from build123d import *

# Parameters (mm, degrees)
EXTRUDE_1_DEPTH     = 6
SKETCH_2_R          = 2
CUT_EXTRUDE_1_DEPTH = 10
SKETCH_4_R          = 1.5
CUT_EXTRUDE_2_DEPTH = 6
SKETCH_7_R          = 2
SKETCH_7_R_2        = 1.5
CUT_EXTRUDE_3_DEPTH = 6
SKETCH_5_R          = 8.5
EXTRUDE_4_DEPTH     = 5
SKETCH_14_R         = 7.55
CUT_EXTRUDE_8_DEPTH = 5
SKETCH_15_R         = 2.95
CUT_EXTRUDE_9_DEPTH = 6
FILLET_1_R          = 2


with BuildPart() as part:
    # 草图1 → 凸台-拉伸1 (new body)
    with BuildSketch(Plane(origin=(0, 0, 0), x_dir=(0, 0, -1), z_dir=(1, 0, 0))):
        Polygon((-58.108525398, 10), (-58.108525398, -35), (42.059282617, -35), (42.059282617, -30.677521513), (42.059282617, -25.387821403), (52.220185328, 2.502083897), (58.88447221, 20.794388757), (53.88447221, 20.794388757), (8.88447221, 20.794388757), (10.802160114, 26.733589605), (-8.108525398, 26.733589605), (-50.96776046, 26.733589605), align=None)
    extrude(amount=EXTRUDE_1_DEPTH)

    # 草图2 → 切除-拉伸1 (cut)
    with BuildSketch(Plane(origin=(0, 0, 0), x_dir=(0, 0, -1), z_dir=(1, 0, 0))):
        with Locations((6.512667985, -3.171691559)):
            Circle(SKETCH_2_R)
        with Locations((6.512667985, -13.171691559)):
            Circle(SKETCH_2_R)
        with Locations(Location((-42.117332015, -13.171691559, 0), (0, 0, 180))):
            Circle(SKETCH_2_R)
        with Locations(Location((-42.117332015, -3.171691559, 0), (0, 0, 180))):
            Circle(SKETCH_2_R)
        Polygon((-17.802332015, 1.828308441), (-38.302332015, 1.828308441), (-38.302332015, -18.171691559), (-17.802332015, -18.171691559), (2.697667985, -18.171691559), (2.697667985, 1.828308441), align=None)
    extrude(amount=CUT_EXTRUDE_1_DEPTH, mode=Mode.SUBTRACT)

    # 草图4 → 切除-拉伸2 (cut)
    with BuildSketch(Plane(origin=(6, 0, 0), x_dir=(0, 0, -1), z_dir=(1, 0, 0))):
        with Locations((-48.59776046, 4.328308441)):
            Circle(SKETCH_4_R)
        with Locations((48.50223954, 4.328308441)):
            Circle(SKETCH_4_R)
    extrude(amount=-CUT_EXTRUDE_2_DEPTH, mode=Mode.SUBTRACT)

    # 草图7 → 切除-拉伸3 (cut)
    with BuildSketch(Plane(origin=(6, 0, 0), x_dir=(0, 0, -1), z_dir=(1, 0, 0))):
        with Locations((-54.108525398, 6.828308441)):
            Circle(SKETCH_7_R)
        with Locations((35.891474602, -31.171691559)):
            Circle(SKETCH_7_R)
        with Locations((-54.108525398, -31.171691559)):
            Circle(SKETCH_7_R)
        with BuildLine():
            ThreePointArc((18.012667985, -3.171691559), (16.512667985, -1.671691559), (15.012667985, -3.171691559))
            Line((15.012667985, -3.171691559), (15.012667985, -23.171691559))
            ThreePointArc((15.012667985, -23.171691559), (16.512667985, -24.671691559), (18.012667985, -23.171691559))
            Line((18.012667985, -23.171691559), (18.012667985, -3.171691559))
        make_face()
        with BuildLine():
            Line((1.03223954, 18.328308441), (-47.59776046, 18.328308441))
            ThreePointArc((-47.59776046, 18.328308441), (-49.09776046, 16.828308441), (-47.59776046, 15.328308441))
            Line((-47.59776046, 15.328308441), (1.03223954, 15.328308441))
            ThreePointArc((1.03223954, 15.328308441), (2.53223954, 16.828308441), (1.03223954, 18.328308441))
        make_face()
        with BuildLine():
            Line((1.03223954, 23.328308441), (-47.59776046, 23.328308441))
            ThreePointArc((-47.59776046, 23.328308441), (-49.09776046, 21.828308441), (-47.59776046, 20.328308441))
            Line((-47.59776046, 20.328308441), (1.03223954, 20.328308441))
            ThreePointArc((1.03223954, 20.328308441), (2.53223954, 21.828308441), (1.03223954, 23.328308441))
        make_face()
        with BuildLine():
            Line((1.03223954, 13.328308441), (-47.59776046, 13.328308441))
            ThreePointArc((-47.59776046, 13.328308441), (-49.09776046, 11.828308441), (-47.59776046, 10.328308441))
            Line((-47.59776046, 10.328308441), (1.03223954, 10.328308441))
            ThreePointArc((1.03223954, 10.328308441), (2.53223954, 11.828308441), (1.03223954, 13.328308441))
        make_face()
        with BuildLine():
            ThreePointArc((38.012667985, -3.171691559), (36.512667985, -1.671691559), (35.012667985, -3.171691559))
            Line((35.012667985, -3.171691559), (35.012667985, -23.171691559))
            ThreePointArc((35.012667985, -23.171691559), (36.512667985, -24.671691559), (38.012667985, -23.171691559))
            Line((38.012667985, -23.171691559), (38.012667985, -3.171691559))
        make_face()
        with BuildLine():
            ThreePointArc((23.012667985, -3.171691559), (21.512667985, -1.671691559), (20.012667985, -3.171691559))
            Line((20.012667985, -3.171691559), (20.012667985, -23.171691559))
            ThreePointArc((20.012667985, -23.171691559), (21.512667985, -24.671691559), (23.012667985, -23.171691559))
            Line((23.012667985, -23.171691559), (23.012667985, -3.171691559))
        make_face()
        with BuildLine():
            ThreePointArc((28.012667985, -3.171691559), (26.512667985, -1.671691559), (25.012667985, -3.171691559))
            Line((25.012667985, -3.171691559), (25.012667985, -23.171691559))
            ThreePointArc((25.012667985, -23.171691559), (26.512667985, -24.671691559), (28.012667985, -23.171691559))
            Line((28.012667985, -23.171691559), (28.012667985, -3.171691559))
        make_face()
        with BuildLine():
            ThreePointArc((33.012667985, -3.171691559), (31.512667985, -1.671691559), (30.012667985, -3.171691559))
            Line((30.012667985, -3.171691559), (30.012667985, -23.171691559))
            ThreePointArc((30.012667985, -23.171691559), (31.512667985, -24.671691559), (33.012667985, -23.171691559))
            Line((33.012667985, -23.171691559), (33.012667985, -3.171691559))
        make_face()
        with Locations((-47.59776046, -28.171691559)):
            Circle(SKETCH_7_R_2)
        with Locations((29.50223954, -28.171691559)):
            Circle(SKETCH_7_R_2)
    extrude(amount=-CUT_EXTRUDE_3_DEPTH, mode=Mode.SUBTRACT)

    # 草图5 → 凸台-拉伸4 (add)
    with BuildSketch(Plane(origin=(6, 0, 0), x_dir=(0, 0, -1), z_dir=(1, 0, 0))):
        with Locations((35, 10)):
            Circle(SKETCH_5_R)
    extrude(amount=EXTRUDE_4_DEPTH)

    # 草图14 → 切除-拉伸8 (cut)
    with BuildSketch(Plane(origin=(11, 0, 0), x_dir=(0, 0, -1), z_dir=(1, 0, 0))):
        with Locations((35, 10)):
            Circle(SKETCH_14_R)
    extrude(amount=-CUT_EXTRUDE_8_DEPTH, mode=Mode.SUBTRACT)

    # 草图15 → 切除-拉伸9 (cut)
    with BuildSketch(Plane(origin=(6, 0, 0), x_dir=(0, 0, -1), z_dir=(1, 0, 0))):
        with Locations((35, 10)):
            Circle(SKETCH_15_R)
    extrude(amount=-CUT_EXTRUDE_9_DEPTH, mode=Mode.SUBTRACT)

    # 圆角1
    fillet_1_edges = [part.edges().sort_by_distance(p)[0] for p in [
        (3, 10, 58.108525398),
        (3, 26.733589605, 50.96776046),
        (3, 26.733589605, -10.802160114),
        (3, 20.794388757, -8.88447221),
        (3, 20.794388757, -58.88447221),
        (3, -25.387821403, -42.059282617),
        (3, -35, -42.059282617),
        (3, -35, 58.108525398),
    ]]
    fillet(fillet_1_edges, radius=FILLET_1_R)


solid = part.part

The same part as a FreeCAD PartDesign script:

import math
import FreeCAD as App
import Part
import Sketcher

V = App.Vector
Q = App.Units.Quantity


def edges_at(feature, points):
    """Names of the edges that pass closest to the given points."""
    edges = feature.Shape.Edges
    near = lambda p: min(range(len(edges)), key=lambda i: edges[i].distToShape(Part.Vertex(*p))[0])
    return sorted({f"Edge{near(p) + 1}" for p in points})

doc = App.newDocument("Part")
body = doc.addObject("PartDesign::Body", "Body")

# Sketch on YZ plane
sketch1 = doc.addObject("Sketcher::SketchObject", "Sketch")
body.addObject(sketch1)
sketch1.AttachmentSupport = (doc.YZ_Plane, [""])
sketch1.MapMode = "FlatFace"
sketch1.addGeometry([
    Part.LineSegment(V(10, 58.108525, 0), V(-35, 58.108525, 0)),  # 0
    Part.LineSegment(V(-35, 58.108525, 0), V(-35, -42.059283, 0)),  # 1
    Part.LineSegment(V(-35, -42.059283, 0), V(-25.387821, -42.059283, 0)),  # 2
    Part.LineSegment(V(-25.387821, -42.059283, 0), V(2.502084, -52.220185, 0)),  # 3
    Part.LineSegment(V(2.502084, -52.220185, 0), V(20.794389, -58.884472, 0)),  # 4
    Part.LineSegment(V(20.794389, -58.884472, 0), V(20.794389, -8.884472, 0)),  # 5
    Part.LineSegment(V(20.794389, -8.884472, 0), V(26.73359, -10.80216, 0)),  # 6
    Part.LineSegment(V(26.73359, -10.80216, 0), V(26.73359, 50.96776, 0)),  # 7
    Part.LineSegment(V(26.73359, 50.96776, 0), V(10, 58.108525, 0)),  # 8
], False)
sketch1.addConstraint([
    Sketcher.Constraint("Coincident", 0, 2, 1, 1),
    Sketcher.Constraint("Coincident", 1, 2, 2, 1),
    Sketcher.Constraint("Coincident", 2, 2, 3, 1),
    Sketcher.Constraint("Coincident", 3, 2, 4, 1),
    Sketcher.Constraint("Coincident", 4, 2, 5, 1),
    Sketcher.Constraint("Coincident", 5, 2, 6, 1),
    Sketcher.Constraint("Coincident", 6, 2, 7, 1),
    Sketcher.Constraint("Coincident", 7, 2, 8, 1),
    Sketcher.Constraint("Coincident", 8, 2, 0, 1),
    Sketcher.Constraint("Horizontal", 0),
    Sketcher.Constraint("Vertical", 1),
    Sketcher.Constraint("Horizontal", 2),
    Sketcher.Constraint("Vertical", 5),
    Sketcher.Constraint("Vertical", 7),
    Sketcher.Constraint("Parallel", 3, 4),
    Sketcher.Constraint("DistanceX", 0, 2, 0, 1, Q("45 mm")),
    Sketcher.Constraint("DistanceY", 5, 1, 5, 2, Q("50 mm")),
    Sketcher.Constraint("DistanceX", 0, 2, -1, 1, Q("35 mm")),
    Sketcher.Constraint("DistanceX", 2, 1, 2, 2, Q("9.612179 mm")),
    Sketcher.Constraint("DistanceY", 1, 2, 1, 1, Q("100.167808 mm")),
    Sketcher.Constraint("DistanceY", 7, 1, 7, 2, Q("61.769921 mm")),
    Sketcher.Constraint("DistanceX", 5, 2, 6, 2, Q("5.939201 mm")),
    Sketcher.Constraint("DistanceX", -1, 1, 4, 2, Q("20.794389 mm")),
    Sketcher.Constraint("DistanceY", 6, 2, -1, 1, Q("10.80216 mm")),
    Sketcher.Constraint("DistanceY", 3, 2, 0, 2, Q("110.328711 mm")),
    Sketcher.Constraint("DistanceY", 4, 2, 2, 2, Q("16.82519 mm")),
    Sketcher.Constraint("Distance", 6, Q("6.241124 mm")),
])
pad1 = doc.addObject("PartDesign::Pad", "Pad")
body.addObject(pad1)
pad1.Profile = sketch1
pad1.Length = 6

# Sketch on YZ plane
sketch2 = doc.addObject("Sketcher::SketchObject", "Sketch001")
body.addObject(sketch2)
sketch2.AttachmentSupport = (doc.YZ_Plane, [""])
sketch2.MapMode = "FlatFace"
sketch2.addGeometry([
    Part.Circle(V(-3.171692, -6.512668, 0), V(0, 0, 1), 2),  # 0
    Part.Circle(V(-13.171692, -6.512668, 0), V(0, 0, 1), 2),  # 1
    Part.Circle(V(-13.171692, 42.117332, 0), V(0, 0, 1), 2),  # 2
    Part.Circle(V(-3.171692, 42.117332, 0), V(0, 0, 1), 2),  # 3
    Part.LineSegment(V(1.828308, 38.302332, 0), V(-18.171692, 38.302332, 0)),  # 4
    Part.LineSegment(V(-18.171692, 38.302332, 0), V(-18.171692, -2.697668, 0)),  # 5
    Part.LineSegment(V(-18.171692, -2.697668, 0), V(1.828308, -2.697668, 0)),  # 6
    Part.LineSegment(V(1.828308, -2.697668, 0), V(1.828308, 38.302332, 0)),  # 7
], False)
sketch2.addConstraint([
    Sketcher.Constraint("Coincident", 4, 2, 5, 1),
    Sketcher.Constraint("Coincident", 5, 2, 6, 1),
    Sketcher.Constraint("Coincident", 6, 2, 7, 1),
    Sketcher.Constraint("Coincident", 7, 2, 4, 1),
    Sketcher.Constraint("Horizontal", 4),
    Sketcher.Constraint("Vertical", 5),
    Sketcher.Constraint("Horizontal", 6),
    Sketcher.Constraint("Vertical", 7),
    Sketcher.Constraint("Equal", 0, 1),
    Sketcher.Constraint("Equal", 1, 2),
    Sketcher.Constraint("Equal", 2, 3),
    Sketcher.Constraint("Horizontal", 0, 3, 1, 3),
    Sketcher.Constraint("Horizontal", 2, 3, 3, 3),
    Sketcher.Constraint("Vertical", 1, 3, 2, 3),
    Sketcher.Constraint("Vertical", 0, 3, 3, 3),
    Sketcher.Constraint("Diameter", 0, Q("4 mm")),
    Sketcher.Constraint("DistanceX", 4, 2, 4, 1, Q("20 mm")),
    Sketcher.Constraint("DistanceY", 5, 2, 5, 1, Q("41 mm")),
    Sketcher.Constraint("DistanceX", 1, 3, 0, 3, Q("10 mm")),
    Sketcher.Constraint("DistanceX", 4, 2, 2, 3, Q("5 mm")),
    Sketcher.Constraint("DistanceY", 1, 3, 2, 3, Q("48.63 mm")),
    Sketcher.Constraint("DistanceY", 4, 2, 2, 3, Q("3.815 mm")),
    Sketcher.Constraint("DistanceX", 0, 3, -1, 1, Q("3.171692 mm")),
    Sketcher.Constraint("DistanceY", 0, 3, -1, 1, Q("6.512668 mm")),
])
pocket1 = doc.addObject("PartDesign::Pocket", "Pocket")
body.addObject(pocket1)
pocket1.Profile = sketch2
pocket1.Length = 10
pocket1.Reversed = True

# Sketch on YZ plane
sketch3 = doc.addObject("Sketcher::SketchObject", "Sketch002")
body.addObject(sketch3)
sketch3.AttachmentSupport = (doc.YZ_Plane, [""])
sketch3.MapMode = "FlatFace"
sketch3.AttachmentOffset = App.Placement(V(0, 0, 6), App.Rotation())
sketch3.addGeometry([
    Part.Circle(V(4.328308, 48.59776, 0), V(0, 0, 1), 1.5),
    Part.Circle(V(4.328308, -48.50224, 0), V(0, 0, 1), 1.5),
], False)
sketch3.addConstraint([
    Sketcher.Constraint("Equal", 0, 1),
    Sketcher.Constraint("Vertical", 0, 3, 1, 3),
    Sketcher.Constraint("Diameter", 0, Q("3 mm")),
    Sketcher.Constraint("DistanceY", 1, 3, 0, 3, Q("97.1 mm")),
    Sketcher.Constraint("DistanceX", -1, 1, 0, 3, Q("4.328308 mm")),
    Sketcher.Constraint("DistanceY", -1, 1, 0, 3, Q("48.59776 mm")),
])
pocket2 = doc.addObject("PartDesign::Pocket", "Pocket001")
body.addObject(pocket2)
pocket2.Profile = sketch3
pocket2.Length = 6

# Sketch on YZ plane
sketch4 = doc.addObject("Sketcher::SketchObject", "Sketch003")
body.addObject(sketch4)
sketch4.AttachmentSupport = (doc.YZ_Plane, [""])
sketch4.MapMode = "FlatFace"
sketch4.AttachmentOffset = App.Placement(V(0, 0, 6), App.Rotation())
sketch4.addGeometry([
    Part.Circle(V(6.828308, 54.108525, 0), V(0, 0, 1), 2),  # 0
    Part.Circle(V(-31.171692, -35.891475, 0), V(0, 0, 1), 2),  # 1
    Part.Circle(V(-31.171692, 54.108525, 0), V(0, 0, 1), 2),  # 2
    Part.ArcOfCircle(Part.Circle(V(-3.171692, -16.512668, 0), V(0, 0, 1), 1.5), math.radians(-90), math.radians(90)),  # 3
    Part.LineSegment(V(-3.171692, -15.012668, 0), V(-23.171692, -15.012668, 0)),  # 4
    Part.ArcOfCircle(Part.Circle(V(-23.171692, -16.512668, 0), V(0, 0, 1), 1.5), math.radians(90), math.radians(270)),  # 5
    Part.LineSegment(V(-23.171692, -18.012668, 0), V(-3.171692, -18.012668, 0)),  # 6
    Part.LineSegment(V(18.328308, -1.03224, 0), V(18.328308, 47.59776, 0)),  # 7
    Part.ArcOfCircle(Part.Circle(V(16.828308, 47.59776, 0), V(0, 0, 1), 1.5), math.radians(0), math.radians(180)),  # 8
    Part.LineSegment(V(15.328308, 47.59776, 0), V(15.328308, -1.03224, 0)),  # 9
    Part.ArcOfCircle(Part.Circle(V(16.828308, -1.03224, 0), V(0, 0, 1), 1.5), math.radians(180), math.radians(360)),  # 10
    Part.LineSegment(V(23.328308, -1.03224, 0), V(23.328308, 47.59776, 0)),  # 11
    Part.ArcOfCircle(Part.Circle(V(21.828308, 47.59776, 0), V(0, 0, 1), 1.5), math.radians(0), math.radians(180)),  # 12
    Part.LineSegment(V(20.328308, 47.59776, 0), V(20.328308, -1.03224, 0)),  # 13
    Part.ArcOfCircle(Part.Circle(V(21.828308, -1.03224, 0), V(0, 0, 1), 1.5), math.radians(180), math.radians(360)),  # 14
    Part.LineSegment(V(13.328308, -1.03224, 0), V(13.328308, 47.59776, 0)),  # 15
    Part.ArcOfCircle(Part.Circle(V(11.828308, 47.59776, 0), V(0, 0, 1), 1.5), math.radians(0), math.radians(180)),  # 16
    Part.LineSegment(V(10.328308, 47.59776, 0), V(10.328308, -1.03224, 0)),  # 17
    Part.ArcOfCircle(Part.Circle(V(11.828308, -1.03224, 0), V(0, 0, 1), 1.5), math.radians(180), math.radians(360)),  # 18
    Part.ArcOfCircle(Part.Circle(V(-3.171692, -36.512668, 0), V(0, 0, 1), 1.5), math.radians(-90), math.radians(90)),  # 19
    Part.LineSegment(V(-3.171692, -35.012668, 0), V(-23.171692, -35.012668, 0)),  # 20
    Part.ArcOfCircle(Part.Circle(V(-23.171692, -36.512668, 0), V(0, 0, 1), 1.5), math.radians(90), math.radians(270)),  # 21
    Part.LineSegment(V(-23.171692, -38.012668, 0), V(-3.171692, -38.012668, 0)),  # 22
    Part.ArcOfCircle(Part.Circle(V(-3.171692, -21.512668, 0), V(0, 0, 1), 1.5), math.radians(-90), math.radians(90)),  # 23
    Part.LineSegment(V(-3.171692, -20.012668, 0), V(-23.171692, -20.012668, 0)),  # 24
    Part.ArcOfCircle(Part.Circle(V(-23.171692, -21.512668, 0), V(0, 0, 1), 1.5), math.radians(90), math.radians(270)),  # 25
    Part.LineSegment(V(-23.171692, -23.012668, 0), V(-3.171692, -23.012668, 0)),  # 26
    Part.ArcOfCircle(Part.Circle(V(-3.171692, -26.512668, 0), V(0, 0, 1), 1.5), math.radians(-90), math.radians(90)),  # 27
    Part.LineSegment(V(-3.171692, -25.012668, 0), V(-23.171692, -25.012668, 0)),  # 28
    Part.ArcOfCircle(Part.Circle(V(-23.171692, -26.512668, 0), V(0, 0, 1), 1.5), math.radians(90), math.radians(270)),  # 29
    Part.LineSegment(V(-23.171692, -28.012668, 0), V(-3.171692, -28.012668, 0)),  # 30
    Part.ArcOfCircle(Part.Circle(V(-3.171692, -31.512668, 0), V(0, 0, 1), 1.5), math.radians(-90), math.radians(90)),  # 31
    Part.LineSegment(V(-3.171692, -30.012668, 0), V(-23.171692, -30.012668, 0)),  # 32
    Part.ArcOfCircle(Part.Circle(V(-23.171692, -31.512668, 0), V(0, 0, 1), 1.5), math.radians(90), math.radians(270)),  # 33
    Part.LineSegment(V(-23.171692, -33.012668, 0), V(-3.171692, -33.012668, 0)),  # 34
    Part.Circle(V(-28.171692, 47.59776, 0), V(0, 0, 1), 1.5),  # 35
    Part.Circle(V(-28.171692, -29.50224, 0), V(0, 0, 1), 1.5),  # 36
], False)
sketch4.addConstraint([
    Sketcher.Constraint("Tangent", 3, 2, 4, 1),
    Sketcher.Constraint("Tangent", 4, 2, 5, 1),
    Sketcher.Constraint("Tangent", 5, 2, 6, 1),
    Sketcher.Constraint("Tangent", 6, 2, 3, 1),
    Sketcher.Constraint("Tangent", 7, 2, 8, 1),
    Sketcher.Constraint("Tangent", 8, 2, 9, 1),
    Sketcher.Constraint("Tangent", 9, 2, 10, 1),
    Sketcher.Constraint("Tangent", 10, 2, 7, 1),
    Sketcher.Constraint("Tangent", 11, 2, 12, 1),
    Sketcher.Constraint("Tangent", 12, 2, 13, 1),
    Sketcher.Constraint("Tangent", 13, 2, 14, 1),
    Sketcher.Constraint("Tangent", 14, 2, 11, 1),
    Sketcher.Constraint("Tangent", 15, 2, 16, 1),
    Sketcher.Constraint("Tangent", 16, 2, 17, 1),
    Sketcher.Constraint("Tangent", 17, 2, 18, 1),
    Sketcher.Constraint("Tangent", 18, 2, 15, 1),
    Sketcher.Constraint("Tangent", 19, 2, 20, 1),
    Sketcher.Constraint("Tangent", 20, 2, 21, 1),
    Sketcher.Constraint("Tangent", 21, 2, 22, 1),
    Sketcher.Constraint("Tangent", 22, 2, 19, 1),
    Sketcher.Constraint("Tangent", 23, 2, 24, 1),
    Sketcher.Constraint("Tangent", 24, 2, 25, 1),
    Sketcher.Constraint("Tangent", 25, 2, 26, 1),
    Sketcher.Constraint("Tangent", 26, 2, 23, 1),
    Sketcher.Constraint("Tangent", 27, 2, 28, 1),
    Sketcher.Constraint("Tangent", 28, 2, 29, 1),
    Sketcher.Constraint("Tangent", 29, 2, 30, 1),
    Sketcher.Constraint("Tangent", 30, 2, 27, 1),
    Sketcher.Constraint("Tangent", 31, 2, 32, 1),
    Sketcher.Constraint("Tangent", 32, 2, 33, 1),
    Sketcher.Constraint("Tangent", 33, 2, 34, 1),
    Sketcher.Constraint("Tangent", 34, 2, 31, 1),
    Sketcher.Constraint("Horizontal", 4),
    Sketcher.Constraint("Horizontal", 6),
    Sketcher.Constraint("Vertical", 7),
    Sketcher.Constraint("Vertical", 9),
    Sketcher.Constraint("Vertical", 11),
    Sketcher.Constraint("Vertical", 13),
    Sketcher.Constraint("Vertical", 15),
    Sketcher.Constraint("Vertical", 17),
    Sketcher.Constraint("Horizontal", 20),
    Sketcher.Constraint("Horizontal", 22),
    Sketcher.Constraint("Horizontal", 24),
    Sketcher.Constraint("Horizontal", 26),
    Sketcher.Constraint("Horizontal", 28),
    Sketcher.Constraint("Horizontal", 30),
    Sketcher.Constraint("Horizontal", 32),
    Sketcher.Constraint("Horizontal", 34),
    Sketcher.Constraint("Equal", 0, 1),
    Sketcher.Constraint("Equal", 1, 2),
    Sketcher.Constraint("Equal", 5, 8),
    Sketcher.Constraint("Equal", 10, 12),
    Sketcher.Constraint("Equal", 14, 16),
    Sketcher.Constraint("Equal", 18, 19),
    Sketcher.Constraint("Equal", 21, 23),
    Sketcher.Constraint("Equal", 25, 27),
    Sketcher.Constraint("Equal", 29, 31),
    Sketcher.Constraint("Equal", 33, 35),
    Sketcher.Constraint("Equal", 35, 36),
    Sketcher.Constraint("Horizontal", 0, 3, 2, 3),
    Sketcher.Constraint("Horizontal", 8, 3, 12, 3),
    Sketcher.Constraint("Horizontal", 10, 3, 14, 3),
    Sketcher.Constraint("Horizontal", 12, 3, 16, 3),
    Sketcher.Constraint("Horizontal", 14, 3, 18, 3),
    Sketcher.Constraint("Horizontal", 16, 3, 35, 3),
    Sketcher.Constraint("Vertical", 1, 3, 2, 3),
    Sketcher.Constraint("Vertical", 3, 3, 19, 3),
    Sketcher.Constraint("Vertical", 5, 3, 21, 3),
    Sketcher.Constraint("Vertical", 19, 3, 23, 3),
    Sketcher.Constraint("Vertical", 21, 3, 25, 3),
    Sketcher.Constraint("Vertical", 23, 3, 27, 3),
    Sketcher.Constraint("Vertical", 25, 3, 29, 3),
    Sketcher.Constraint("Vertical", 27, 3, 31, 3),
    Sketcher.Constraint("Vertical", 29, 3, 33, 3),
    Sketcher.Constraint("Vertical", 35, 3, 36, 3),
    Sketcher.Constraint("Diameter", 0, Q("4 mm")),
    Sketcher.Constraint("Diameter", 35, Q("3 mm")),
    Sketcher.Constraint("DistanceX", 4, 2, 4, 1, Q("20 mm")),
    Sketcher.Constraint("DistanceX", 1, 3, 0, 3, Q("38 mm")),
    Sketcher.Constraint("DistanceY", 1, 3, 0, 3, Q("90 mm")),
    Sketcher.Constraint("DistanceX", 1, 3, 3, 3, Q("28 mm")),
    Sketcher.Constraint("DistanceX", 0, 3, 8, 3, Q("10 mm")),
    Sketcher.Constraint("DistanceX", 8, 3, 12, 3, Q("5 mm")),
    Sketcher.Constraint("DistanceX", 16, 3, 8, 3, Q("5 mm")),
    Sketcher.Constraint("DistanceY", 19, 3, 3, 3, Q("20 mm")),
    Sketcher.Constraint("DistanceY", 23, 3, 3, 3, Q("5 mm")),
    Sketcher.Constraint("DistanceY", 27, 3, 23, 3, Q("5 mm")),
    Sketcher.Constraint("DistanceY", 19, 3, 31, 3, Q("5 mm")),
    Sketcher.Constraint("DistanceX", 2, 3, 35, 3, Q("3 mm")),
    Sketcher.Constraint("DistanceY", 7, 1, 7, 2, Q("48.63 mm")),
    Sketcher.Constraint("DistanceX", -1, 1, 0, 3, Q("6.828308 mm")),
    Sketcher.Constraint("DistanceY", -1, 1, 8, 3, Q("47.59776 mm")),
    Sketcher.Constraint("DistanceY", 36, 3, -1, 1, Q("29.50224 mm")),
    Sketcher.Constraint("DistanceY", 3, 3, 8, 3, Q("64.110428 mm")),
    Sketcher.Constraint("DistanceY", -1, 1, 0, 3, Q("54.108525 mm")),
])
pocket3 = doc.addObject("PartDesign::Pocket", "Pocket002")
body.addObject(pocket3)
pocket3.Profile = sketch4
pocket3.Length = 6

# Sketch on YZ plane
sketch5 = doc.addObject("Sketcher::SketchObject", "Sketch004")
body.addObject(sketch5)
sketch5.AttachmentSupport = (doc.YZ_Plane, [""])
sketch5.MapMode = "FlatFace"
sketch5.AttachmentOffset = App.Placement(V(0, 0, 6), App.Rotation())
sketch5.addGeometry(Part.Circle(V(10, -35, 0), V(0, 0, 1), 8.5), False)
sketch5.addConstraint([
    Sketcher.Constraint("Diameter", 0, Q("17 mm")),
    Sketcher.Constraint("DistanceX", -1, 1, 0, 3, Q("10 mm")),
    Sketcher.Constraint("DistanceY", 0, 3, -1, 1, Q("35 mm")),
])
pad2 = doc.addObject("PartDesign::Pad", "Pad001")
body.addObject(pad2)
pad2.Profile = sketch5
pad2.Length = 5

# Sketch on YZ plane
sketch6 = doc.addObject("Sketcher::SketchObject", "Sketch005")
body.addObject(sketch6)
sketch6.AttachmentSupport = (doc.YZ_Plane, [""])
sketch6.MapMode = "FlatFace"
sketch6.AttachmentOffset = App.Placement(V(0, 0, 11), App.Rotation())
sketch6.addGeometry(Part.Circle(V(10, -35, 0), V(0, 0, 1), 7.55), False)
sketch6.addConstraint([
    Sketcher.Constraint("Diameter", 0, Q("15.1 mm")),
    Sketcher.Constraint("DistanceX", -1, 1, 0, 3, Q("10 mm")),
    Sketcher.Constraint("DistanceY", 0, 3, -1, 1, Q("35 mm")),
])
pocket4 = doc.addObject("PartDesign::Pocket", "Pocket003")
body.addObject(pocket4)
pocket4.Profile = sketch6
pocket4.Length = 5

# Sketch on YZ plane
sketch7 = doc.addObject("Sketcher::SketchObject", "Sketch006")
body.addObject(sketch7)
sketch7.AttachmentSupport = (doc.YZ_Plane, [""])
sketch7.MapMode = "FlatFace"
sketch7.AttachmentOffset = App.Placement(V(0, 0, 6), App.Rotation())
sketch7.addGeometry(Part.Circle(V(10, -35, 0), V(0, 0, 1), 2.95), False)
sketch7.addConstraint([
    Sketcher.Constraint("Diameter", 0, Q("5.9 mm")),
    Sketcher.Constraint("DistanceX", -1, 1, 0, 3, Q("10 mm")),
    Sketcher.Constraint("DistanceY", 0, 3, -1, 1, Q("35 mm")),
])
pocket5 = doc.addObject("PartDesign::Pocket", "Pocket004")
body.addObject(pocket5)
pocket5.Profile = sketch7
pocket5.Length = 6
doc.recompute()

fillet = doc.addObject("PartDesign::Fillet", "Fillet")
body.addObject(fillet)
fillet.Base = (pocket5, edges_at(pocket5, [
    (3, 10, 58.109),
    (3, 26.734, 50.968),
    (3, 26.734, -10.802),
    (3, 20.794, -8.884),
    (3, 20.794, -58.884),
    (3, -25.388, -42.059),
    (3, -35, -42.059),
    (3, -35, 58.109),
]))
fillet.Radius = 2

doc.recompute()
